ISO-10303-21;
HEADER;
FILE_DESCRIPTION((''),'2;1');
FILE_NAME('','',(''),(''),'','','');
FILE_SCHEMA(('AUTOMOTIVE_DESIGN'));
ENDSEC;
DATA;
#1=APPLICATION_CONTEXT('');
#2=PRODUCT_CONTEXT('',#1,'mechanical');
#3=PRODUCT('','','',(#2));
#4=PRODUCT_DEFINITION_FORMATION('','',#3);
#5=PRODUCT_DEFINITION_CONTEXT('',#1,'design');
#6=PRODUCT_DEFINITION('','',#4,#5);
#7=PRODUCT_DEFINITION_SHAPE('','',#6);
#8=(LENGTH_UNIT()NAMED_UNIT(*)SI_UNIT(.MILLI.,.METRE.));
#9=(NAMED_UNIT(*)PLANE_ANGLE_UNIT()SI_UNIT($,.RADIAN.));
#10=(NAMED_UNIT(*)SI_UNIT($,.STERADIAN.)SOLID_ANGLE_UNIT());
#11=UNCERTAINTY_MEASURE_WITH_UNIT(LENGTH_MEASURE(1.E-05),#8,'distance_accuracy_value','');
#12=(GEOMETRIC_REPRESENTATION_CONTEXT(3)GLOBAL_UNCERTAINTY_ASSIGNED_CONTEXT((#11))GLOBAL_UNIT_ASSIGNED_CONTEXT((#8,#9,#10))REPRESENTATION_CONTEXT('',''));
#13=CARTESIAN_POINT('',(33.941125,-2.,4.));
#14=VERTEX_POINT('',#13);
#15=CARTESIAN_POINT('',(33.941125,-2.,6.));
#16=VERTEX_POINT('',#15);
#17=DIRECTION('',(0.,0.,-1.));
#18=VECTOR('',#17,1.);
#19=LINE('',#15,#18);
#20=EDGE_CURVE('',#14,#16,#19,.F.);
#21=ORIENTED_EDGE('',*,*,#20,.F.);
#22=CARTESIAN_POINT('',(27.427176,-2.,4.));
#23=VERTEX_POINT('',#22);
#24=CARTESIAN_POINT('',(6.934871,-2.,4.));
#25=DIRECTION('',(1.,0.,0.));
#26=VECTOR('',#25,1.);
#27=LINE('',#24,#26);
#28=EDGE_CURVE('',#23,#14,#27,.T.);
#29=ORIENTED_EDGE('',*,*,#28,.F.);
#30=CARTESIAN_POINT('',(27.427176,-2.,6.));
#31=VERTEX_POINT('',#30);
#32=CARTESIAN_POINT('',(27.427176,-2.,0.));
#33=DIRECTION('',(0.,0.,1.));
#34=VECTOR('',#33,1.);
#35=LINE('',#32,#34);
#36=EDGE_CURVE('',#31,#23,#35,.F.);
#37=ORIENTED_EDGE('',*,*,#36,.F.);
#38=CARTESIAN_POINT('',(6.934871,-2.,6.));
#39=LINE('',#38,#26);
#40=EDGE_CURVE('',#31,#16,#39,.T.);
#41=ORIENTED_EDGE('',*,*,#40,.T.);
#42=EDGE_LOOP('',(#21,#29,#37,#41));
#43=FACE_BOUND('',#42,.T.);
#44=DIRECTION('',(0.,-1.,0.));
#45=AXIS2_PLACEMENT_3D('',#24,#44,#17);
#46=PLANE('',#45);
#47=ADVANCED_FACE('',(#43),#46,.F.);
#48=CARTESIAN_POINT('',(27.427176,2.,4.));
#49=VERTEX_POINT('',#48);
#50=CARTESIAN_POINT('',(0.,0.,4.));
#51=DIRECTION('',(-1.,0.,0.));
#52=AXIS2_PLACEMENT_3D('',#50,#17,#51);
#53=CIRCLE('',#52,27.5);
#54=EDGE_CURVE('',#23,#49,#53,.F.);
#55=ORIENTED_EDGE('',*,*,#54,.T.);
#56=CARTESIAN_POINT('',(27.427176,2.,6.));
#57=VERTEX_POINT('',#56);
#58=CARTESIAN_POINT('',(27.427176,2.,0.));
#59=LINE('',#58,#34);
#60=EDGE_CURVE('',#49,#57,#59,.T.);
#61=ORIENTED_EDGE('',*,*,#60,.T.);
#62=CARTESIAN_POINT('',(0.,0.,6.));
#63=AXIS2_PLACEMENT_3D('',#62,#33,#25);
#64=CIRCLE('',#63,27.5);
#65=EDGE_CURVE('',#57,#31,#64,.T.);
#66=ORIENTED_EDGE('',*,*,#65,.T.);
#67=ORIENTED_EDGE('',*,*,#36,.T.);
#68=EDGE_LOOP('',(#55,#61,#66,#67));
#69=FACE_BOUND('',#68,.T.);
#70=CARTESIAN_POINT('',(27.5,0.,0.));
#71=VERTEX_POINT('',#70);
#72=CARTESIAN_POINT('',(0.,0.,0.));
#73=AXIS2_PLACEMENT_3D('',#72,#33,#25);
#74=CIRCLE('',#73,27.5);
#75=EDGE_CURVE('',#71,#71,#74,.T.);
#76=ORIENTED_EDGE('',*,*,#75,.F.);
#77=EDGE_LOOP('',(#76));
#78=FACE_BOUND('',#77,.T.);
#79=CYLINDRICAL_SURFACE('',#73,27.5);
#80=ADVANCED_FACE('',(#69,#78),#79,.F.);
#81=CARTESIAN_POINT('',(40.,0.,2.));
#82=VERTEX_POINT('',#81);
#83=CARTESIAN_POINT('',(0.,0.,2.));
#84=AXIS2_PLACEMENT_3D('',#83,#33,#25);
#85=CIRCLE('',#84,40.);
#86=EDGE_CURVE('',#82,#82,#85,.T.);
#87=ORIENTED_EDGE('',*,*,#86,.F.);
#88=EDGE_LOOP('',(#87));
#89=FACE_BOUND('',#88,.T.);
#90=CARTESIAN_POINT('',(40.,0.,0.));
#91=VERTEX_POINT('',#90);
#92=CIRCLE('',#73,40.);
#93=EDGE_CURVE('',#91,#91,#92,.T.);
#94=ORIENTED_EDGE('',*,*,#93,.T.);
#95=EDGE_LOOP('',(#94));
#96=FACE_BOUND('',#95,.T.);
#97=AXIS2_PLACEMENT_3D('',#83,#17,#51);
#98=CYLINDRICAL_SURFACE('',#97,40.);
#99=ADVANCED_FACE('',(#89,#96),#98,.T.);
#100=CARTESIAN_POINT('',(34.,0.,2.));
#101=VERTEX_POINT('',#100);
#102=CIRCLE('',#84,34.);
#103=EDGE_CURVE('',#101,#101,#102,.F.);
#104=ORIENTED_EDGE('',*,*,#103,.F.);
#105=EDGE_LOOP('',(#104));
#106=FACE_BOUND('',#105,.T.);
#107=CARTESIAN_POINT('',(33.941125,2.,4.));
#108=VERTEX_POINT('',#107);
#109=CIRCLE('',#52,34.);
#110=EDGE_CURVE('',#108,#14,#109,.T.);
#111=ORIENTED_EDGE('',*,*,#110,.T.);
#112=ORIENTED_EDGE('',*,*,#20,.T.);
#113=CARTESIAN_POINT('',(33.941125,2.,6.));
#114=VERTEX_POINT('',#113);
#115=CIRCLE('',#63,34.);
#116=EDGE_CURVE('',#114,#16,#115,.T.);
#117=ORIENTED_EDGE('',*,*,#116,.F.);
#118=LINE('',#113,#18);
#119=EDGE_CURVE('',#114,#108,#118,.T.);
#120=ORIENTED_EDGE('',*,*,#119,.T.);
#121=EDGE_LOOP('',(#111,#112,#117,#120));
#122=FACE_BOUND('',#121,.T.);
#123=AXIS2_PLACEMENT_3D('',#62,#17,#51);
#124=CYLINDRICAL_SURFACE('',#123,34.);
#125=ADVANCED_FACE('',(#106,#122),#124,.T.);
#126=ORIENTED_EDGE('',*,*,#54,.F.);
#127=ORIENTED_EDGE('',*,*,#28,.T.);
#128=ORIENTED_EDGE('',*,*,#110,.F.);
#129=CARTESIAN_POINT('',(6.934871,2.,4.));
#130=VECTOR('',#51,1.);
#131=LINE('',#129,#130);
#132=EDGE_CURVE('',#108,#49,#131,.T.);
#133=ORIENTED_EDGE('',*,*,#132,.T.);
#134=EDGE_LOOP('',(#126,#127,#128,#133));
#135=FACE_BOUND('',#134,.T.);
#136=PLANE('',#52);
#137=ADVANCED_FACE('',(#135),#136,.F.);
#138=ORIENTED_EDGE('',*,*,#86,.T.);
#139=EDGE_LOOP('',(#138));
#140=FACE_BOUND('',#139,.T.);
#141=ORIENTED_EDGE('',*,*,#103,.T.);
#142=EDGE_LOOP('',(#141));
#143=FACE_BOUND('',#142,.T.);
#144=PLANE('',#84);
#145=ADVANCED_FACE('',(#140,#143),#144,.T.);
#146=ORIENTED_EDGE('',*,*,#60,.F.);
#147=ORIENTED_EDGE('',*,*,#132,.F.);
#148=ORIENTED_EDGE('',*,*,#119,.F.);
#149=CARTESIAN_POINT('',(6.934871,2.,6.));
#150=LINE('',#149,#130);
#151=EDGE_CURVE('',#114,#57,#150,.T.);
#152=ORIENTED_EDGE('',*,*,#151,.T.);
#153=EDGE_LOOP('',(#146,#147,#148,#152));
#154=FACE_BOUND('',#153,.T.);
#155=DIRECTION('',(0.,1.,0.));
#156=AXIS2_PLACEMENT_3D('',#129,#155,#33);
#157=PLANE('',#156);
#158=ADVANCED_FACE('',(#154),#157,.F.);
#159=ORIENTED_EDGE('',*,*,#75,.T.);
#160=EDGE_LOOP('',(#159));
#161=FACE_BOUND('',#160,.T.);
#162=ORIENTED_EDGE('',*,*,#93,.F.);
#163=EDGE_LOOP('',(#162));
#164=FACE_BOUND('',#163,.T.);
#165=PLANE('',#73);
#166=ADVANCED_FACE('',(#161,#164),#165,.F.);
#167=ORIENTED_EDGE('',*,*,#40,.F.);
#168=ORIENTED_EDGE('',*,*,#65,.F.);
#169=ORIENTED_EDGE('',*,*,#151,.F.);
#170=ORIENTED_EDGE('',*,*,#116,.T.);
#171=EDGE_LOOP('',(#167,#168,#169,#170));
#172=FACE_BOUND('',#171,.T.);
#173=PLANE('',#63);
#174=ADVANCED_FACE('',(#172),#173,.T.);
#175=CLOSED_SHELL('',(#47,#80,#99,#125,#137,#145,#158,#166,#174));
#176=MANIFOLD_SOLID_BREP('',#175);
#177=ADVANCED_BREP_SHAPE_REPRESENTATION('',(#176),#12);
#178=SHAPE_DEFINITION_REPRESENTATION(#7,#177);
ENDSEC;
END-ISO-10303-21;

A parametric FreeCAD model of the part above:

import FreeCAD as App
import Part
import Sketcher

V = App.Vector


def add_polygon(sketch, points):
    """Adds a closed chain of lines whose ends are joined by coincident constraints."""
    first, n = sketch.GeometryCount, len(points)
    for a, b in zip(points, points[1:] + points[:1]):
        sketch.addGeometry(Part.LineSegment(App.Vector(*a, 0), App.Vector(*b, 0)), False)
    for i in range(n):
        sketch.addConstraint(Sketcher.Constraint("Coincident", first + i, 2, first + (i + 1) % n, 1))

doc = App.newDocument("Part")
body = doc.addObject("PartDesign::Body", "Body")

sketch1 = body.newObject("Sketcher::SketchObject", "Sketch")
sketch1.AttachmentSupport = (doc.getObject("XY_Plane"), [""])
sketch1.MapMode = "FlatFace"
sketch1.addGeometry(Part.Circle(V(0, 0, 0), V(0, 0, 1), 40), False)
sketch1.addConstraint([
    Sketcher.Constraint("Coincident", 0, 3, -1, 1),
    Sketcher.Constraint("Diameter", 0, 80.0),
])
pad1 = body.newObject("PartDesign::Pad", "Pad")
pad1.Profile = sketch1
pad1.Length = 2

sketch2 = body.newObject("Sketcher::SketchObject", "Sketch001")
sketch2.AttachmentSupport = (doc.getObject("XY_Plane"), [""])
sketch2.MapMode = "FlatFace"
sketch2.addGeometry(Part.Circle(V(0, 0, 0), V(0, 0, 1), 34), False)
sketch2.addConstraint([
    Sketcher.Constraint("Coincident", 0, 3, -1, 1),
    Sketcher.Constraint("Diameter", 0, 68.0),
])
pad2 = body.newObject("PartDesign::Pad", "Pad001")
pad2.Profile = sketch2
pad2.Length = 6

sketch3 = body.newObject("Sketcher::SketchObject", "Sketch002")
sketch3.AttachmentSupport = (doc.getObject("XY_Plane"), [""])
sketch3.MapMode = "FlatFace"
sketch3.AttachmentOffset = App.Placement(V(0, 0, 6), App.Rotation())
sketch3.addGeometry(Part.Circle(V(0, 0, 0), V(0, 0, 1), 28), False)
sketch3.addConstraint([
    Sketcher.Constraint("Coincident", 0, 3, -1, 1),
    Sketcher.Constraint("Diameter", 0, 55.0),
])
pocket1 = body.newObject("PartDesign::Pocket", "Pocket")
pocket1.Profile = sketch3
pocket1.Type = "ThroughAll"

sketch4 = body.newObject("Sketcher::SketchObject", "Sketch003")
sketch4.AttachmentSupport = (doc.getObject("XY_Plane"), [""])
sketch4.MapMode = "FlatFace"
sketch4.AttachmentOffset = App.Placement(V(0, 0, 6), App.Rotation())
add_polygon(sketch4, [(6.9, 2), (6.9, -2), (53.9, -2), (53.9, 2)])
sketch4.addConstraint([
    Sketcher.Constraint("Vertical", 0),
    Sketcher.Constraint("Horizontal", 1),
    Sketcher.Constraint("Vertical", 2),
    Sketcher.Constraint("Horizontal", 3),
    Sketcher.Constraint("DistanceY", 0, 2, 0, 1, 4.0),
    Sketcher.Constraint("DistanceY", 0, 2, -1, 1, 2.0),
    Sketcher.Constraint("DistanceX", 1, 1, 1, 2, 46.937335),
    Sketcher.Constraint("DistanceX", -1, 1, 0, 2, 6.934871),
])
pocket2 = body.newObject("PartDesign::Pocket", "Pocket001")
pocket2.Profile = sketch4
pocket2.Length = 2

doc.recompute()
